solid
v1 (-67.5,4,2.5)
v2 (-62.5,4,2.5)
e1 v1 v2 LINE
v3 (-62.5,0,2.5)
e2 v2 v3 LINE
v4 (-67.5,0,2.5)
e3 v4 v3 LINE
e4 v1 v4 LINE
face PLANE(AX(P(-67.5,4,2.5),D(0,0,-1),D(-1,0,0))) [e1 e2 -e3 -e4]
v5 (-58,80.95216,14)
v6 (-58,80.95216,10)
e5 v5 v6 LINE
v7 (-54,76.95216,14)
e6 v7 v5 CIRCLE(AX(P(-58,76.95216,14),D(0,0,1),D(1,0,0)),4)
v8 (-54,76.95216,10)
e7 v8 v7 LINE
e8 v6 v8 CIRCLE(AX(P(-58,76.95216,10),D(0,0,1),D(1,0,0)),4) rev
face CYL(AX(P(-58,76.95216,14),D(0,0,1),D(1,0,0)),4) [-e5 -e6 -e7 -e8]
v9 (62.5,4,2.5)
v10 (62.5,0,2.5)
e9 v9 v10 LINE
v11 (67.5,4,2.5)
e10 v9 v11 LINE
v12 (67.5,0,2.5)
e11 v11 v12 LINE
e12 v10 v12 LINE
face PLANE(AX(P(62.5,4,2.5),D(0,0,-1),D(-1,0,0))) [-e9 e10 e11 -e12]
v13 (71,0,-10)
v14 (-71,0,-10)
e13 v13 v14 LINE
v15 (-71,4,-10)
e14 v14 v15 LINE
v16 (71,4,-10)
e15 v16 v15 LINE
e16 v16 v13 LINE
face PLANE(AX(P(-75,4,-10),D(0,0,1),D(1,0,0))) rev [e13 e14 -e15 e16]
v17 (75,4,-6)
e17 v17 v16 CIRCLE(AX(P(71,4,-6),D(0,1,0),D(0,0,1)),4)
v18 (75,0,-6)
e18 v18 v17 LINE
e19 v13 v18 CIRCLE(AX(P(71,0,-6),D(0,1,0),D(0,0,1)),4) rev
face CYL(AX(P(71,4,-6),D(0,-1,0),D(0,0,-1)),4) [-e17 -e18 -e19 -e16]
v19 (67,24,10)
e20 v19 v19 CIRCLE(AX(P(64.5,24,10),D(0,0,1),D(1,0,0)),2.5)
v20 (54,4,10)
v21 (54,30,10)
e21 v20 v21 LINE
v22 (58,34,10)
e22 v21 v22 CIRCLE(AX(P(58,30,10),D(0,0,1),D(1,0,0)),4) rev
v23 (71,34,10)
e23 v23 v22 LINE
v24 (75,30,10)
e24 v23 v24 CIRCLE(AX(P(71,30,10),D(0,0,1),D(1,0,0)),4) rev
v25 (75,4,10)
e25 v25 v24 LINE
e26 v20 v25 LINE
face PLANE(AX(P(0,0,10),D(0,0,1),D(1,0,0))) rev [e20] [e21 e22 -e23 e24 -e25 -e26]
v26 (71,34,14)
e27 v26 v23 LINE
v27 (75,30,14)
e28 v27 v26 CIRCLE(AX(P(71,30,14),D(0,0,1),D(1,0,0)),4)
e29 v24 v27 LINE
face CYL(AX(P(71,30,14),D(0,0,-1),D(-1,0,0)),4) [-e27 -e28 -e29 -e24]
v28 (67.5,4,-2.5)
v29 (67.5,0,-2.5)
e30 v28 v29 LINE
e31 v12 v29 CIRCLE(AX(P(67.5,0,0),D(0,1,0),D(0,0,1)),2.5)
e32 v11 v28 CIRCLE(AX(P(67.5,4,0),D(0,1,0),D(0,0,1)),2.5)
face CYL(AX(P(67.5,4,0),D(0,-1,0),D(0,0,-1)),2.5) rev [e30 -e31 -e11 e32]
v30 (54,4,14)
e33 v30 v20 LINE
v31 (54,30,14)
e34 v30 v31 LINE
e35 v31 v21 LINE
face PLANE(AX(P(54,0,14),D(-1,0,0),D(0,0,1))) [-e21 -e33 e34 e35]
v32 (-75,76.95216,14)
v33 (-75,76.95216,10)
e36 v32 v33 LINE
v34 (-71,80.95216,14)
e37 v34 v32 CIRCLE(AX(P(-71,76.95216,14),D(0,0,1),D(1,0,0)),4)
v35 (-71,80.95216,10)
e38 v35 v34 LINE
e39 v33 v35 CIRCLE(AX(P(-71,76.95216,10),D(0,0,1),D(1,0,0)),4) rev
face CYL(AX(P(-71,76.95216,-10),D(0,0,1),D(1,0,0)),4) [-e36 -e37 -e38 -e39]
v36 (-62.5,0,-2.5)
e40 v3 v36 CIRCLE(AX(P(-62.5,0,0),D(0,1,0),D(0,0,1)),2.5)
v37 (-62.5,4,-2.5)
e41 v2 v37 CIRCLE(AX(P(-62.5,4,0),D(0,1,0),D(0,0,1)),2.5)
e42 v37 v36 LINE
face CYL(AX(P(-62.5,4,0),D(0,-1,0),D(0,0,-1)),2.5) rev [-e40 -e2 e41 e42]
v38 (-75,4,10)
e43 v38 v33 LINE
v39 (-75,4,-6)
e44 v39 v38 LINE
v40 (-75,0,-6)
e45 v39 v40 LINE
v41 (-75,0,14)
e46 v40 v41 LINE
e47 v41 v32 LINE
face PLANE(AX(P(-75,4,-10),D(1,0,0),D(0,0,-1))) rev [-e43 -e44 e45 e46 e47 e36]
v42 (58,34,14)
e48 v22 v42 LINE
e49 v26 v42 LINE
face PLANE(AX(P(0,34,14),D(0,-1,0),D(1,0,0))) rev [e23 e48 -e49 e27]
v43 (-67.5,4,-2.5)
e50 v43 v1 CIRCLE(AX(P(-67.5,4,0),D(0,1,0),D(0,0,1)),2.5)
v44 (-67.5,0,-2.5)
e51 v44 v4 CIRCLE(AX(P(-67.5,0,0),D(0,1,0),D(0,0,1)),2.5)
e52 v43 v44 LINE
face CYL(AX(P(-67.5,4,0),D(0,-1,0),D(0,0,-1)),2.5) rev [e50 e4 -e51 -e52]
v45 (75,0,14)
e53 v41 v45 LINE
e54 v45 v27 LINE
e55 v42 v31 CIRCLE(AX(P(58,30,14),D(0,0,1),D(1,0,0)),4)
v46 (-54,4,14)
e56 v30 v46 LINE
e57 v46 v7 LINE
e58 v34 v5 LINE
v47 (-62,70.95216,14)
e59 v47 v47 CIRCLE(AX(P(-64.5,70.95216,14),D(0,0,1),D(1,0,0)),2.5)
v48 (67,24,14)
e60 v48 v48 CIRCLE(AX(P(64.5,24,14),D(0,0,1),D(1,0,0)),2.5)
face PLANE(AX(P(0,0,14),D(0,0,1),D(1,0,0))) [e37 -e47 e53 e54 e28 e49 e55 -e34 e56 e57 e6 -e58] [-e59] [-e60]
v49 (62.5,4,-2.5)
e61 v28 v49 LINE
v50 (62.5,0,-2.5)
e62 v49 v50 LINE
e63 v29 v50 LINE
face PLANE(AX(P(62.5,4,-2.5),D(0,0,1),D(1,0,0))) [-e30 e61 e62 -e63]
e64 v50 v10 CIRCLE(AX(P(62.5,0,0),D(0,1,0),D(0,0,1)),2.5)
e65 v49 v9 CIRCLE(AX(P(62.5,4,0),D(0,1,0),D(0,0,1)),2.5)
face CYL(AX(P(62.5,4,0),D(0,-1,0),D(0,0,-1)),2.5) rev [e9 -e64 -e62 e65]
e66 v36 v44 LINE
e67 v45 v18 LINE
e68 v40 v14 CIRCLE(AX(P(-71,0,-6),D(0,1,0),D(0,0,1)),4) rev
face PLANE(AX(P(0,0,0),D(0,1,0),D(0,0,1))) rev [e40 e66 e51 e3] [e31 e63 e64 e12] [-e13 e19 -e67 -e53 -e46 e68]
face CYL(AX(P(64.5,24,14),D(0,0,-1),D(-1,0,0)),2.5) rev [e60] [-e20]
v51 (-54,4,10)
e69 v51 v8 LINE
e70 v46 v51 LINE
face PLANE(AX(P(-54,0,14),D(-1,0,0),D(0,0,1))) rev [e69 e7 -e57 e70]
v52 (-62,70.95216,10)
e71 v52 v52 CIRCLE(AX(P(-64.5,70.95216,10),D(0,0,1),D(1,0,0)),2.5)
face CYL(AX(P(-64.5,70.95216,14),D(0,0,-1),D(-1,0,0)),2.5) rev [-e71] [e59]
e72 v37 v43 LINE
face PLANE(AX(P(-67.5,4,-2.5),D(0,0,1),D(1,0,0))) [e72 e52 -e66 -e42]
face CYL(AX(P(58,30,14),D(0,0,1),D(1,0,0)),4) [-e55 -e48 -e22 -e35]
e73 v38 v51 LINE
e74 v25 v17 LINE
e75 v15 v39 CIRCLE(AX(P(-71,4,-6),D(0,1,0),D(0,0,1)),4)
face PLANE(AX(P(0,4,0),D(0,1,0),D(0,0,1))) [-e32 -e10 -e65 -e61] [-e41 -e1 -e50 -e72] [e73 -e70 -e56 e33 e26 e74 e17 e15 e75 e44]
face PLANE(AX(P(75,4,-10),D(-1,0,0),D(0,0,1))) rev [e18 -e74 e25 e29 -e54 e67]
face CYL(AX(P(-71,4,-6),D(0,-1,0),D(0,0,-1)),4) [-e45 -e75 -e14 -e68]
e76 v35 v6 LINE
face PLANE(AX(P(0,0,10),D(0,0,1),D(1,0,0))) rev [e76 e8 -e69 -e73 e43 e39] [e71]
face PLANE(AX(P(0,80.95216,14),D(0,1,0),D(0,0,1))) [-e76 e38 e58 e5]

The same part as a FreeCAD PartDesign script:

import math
import FreeCAD as App
import Part
import Sketcher

V = App.Vector
Q = App.Units.Quantity


def edges_at(feature, points):
    """Names of the edges that pass closest to the given points."""
    edges = feature.Shape.Edges
    near = lambda p: min(range(len(edges)), key=lambda i: edges[i].distToShape(Part.Vertex(*p))[0])
    return sorted({f"Edge{near(p) + 1}" for p in points})


def add_polygon(sketch, points):
    """Adds a closed chain of lines whose ends are joined by coincident constraints."""
    first, n = sketch.GeometryCount, len(points)
    for a, b in zip(points, points[1:] + points[:1]):
        sketch.addGeometry(Part.LineSegment(App.Vector(*a, 0), App.Vector(*b, 0)), False)
    for i in range(n):
        sketch.addConstraint(Sketcher.Constraint("Coincident", first + i, 2, first + (i + 1) % n, 1))

doc = App.newDocument("Part")
body = doc.addObject("PartDesign::Body", "Body")

# Sketch on XZ plane
sketch1 = doc.addObject("Sketcher::SketchObject", "Sketch")
body.addObject(sketch1)
sketch1.AttachmentSupport = (doc.XZ_Plane, [""])
sketch1.MapMode = "FlatFace"
add_polygon(sketch1, [(-75, -10), (-75, 10), (75, 10), (75, -10)])  # lines 0-3
sketch1.addGeometry(Part.ArcOfCircle(Part.Circle(V(-67.5, 0, 0), V(0, 0, 1), 2.5), math.radians(90), math.radians(270)), False)  # 4
sketch1.addGeometry(Part.LineSegment(V(-67.5, -2.5, 0), V(-62.5, -2.5, 0)), False)  # 5
sketch1.addGeometry(Part.ArcOfCircle(Part.Circle(V(-62.5, 0, 0), V(0, 0, 1), 2.5), math.radians(-90), math.radians(90)), False)  # 6
sketch1.addGeometry(Part.LineSegment(V(-62.5, 2.5, 0), V(-67.5, 2.5, 0)), False)  # 7
sketch1.addGeometry(Part.ArcOfCircle(Part.Circle(V(62.5, 0, 0), V(0, 0, 1), 2.5), math.radians(90), math.radians(270)), False)  # 8
sketch1.addGeometry(Part.LineSegment(V(62.5, -2.5, 0), V(67.5, -2.5, 0)), False)  # 9
sketch1.addGeometry(Part.ArcOfCircle(Part.Circle(V(67.5, 0, 0), V(0, 0, 1), 2.5), math.radians(-90), math.radians(90)), False)  # 10
sketch1.addGeometry(Part.LineSegment(V(67.5, 2.5, 0), V(62.5, 2.5, 0)), False)  # 11
sketch1.addConstraint([
    Sketcher.Constraint("Tangent", 4, 2, 5, 1),
    Sketcher.Constraint("Tangent", 5, 2, 6, 1),
    Sketcher.Constraint("Tangent", 6, 2, 7, 1),
    Sketcher.Constraint("Tangent", 7, 2, 4, 1),
    Sketcher.Constraint("Tangent", 8, 2, 9, 1),
    Sketcher.Constraint("Tangent", 9, 2, 10, 1),
    Sketcher.Constraint("Tangent", 10, 2, 11, 1),
    Sketcher.Constraint("Tangent", 11, 2, 8, 1),
    Sketcher.Constraint("Vertical", 0),
    Sketcher.Constraint("Horizontal", 1),
    Sketcher.Constraint("Vertical", 2),
    Sketcher.Constraint("Horizontal", 3),
    Sketcher.Constraint("Horizontal", 5),
    Sketcher.Constraint("Horizontal", 7),
    Sketcher.Constraint("Horizontal", 9),
    Sketcher.Constraint("Horizontal", 11),
    Sketcher.Constraint("Equal", 6, 8),
    Sketcher.Constraint("Symmetric", 6, 3, 8, 3, -1, 1),
    Sketcher.Constraint("Symmetric", 0, 2, 2, 2, -1, 1),
    Sketcher.Constraint("Symmetric", 4, 3, 10, 3, -2),
    Sketcher.Constraint("Radius", 4, Q("2.5 mm")),
    Sketcher.Constraint("DistanceX", 1, 1, 1, 2, Q("150 mm")),
    Sketcher.Constraint("DistanceX", 5, 1, 5, 2, Q("5 mm")),
    Sketcher.Constraint("DistanceY", 0, 1, 0, 2, Q("20 mm")),
    Sketcher.Constraint("DistanceX", 6, 3, 8, 3, Q("125 mm")),
])
pad1 = doc.addObject("PartDesign::Pad", "Pad")
body.addObject(pad1)
pad1.Profile = sketch1
pad1.Length = 4
pad1.Reversed = True

# Sketch on XY plane
sketch2 = doc.addObject("Sketcher::SketchObject", "Sketch001")
body.addObject(sketch2)
sketch2.AttachmentSupport = (doc.XY_Plane, [""])
sketch2.MapMode = "FlatFace"
sketch2.AttachmentOffset = App.Placement(V(0, 0, 10), App.Rotation())
add_polygon(sketch2, [(-75, 80.95216), (-75, 0), (75, 0), (75, 34), (54, 34), (54, 4), (-54, 4), (-54, 80.95216)])  # lines 0-7
sketch2.addGeometry(Part.Circle(V(-64.5, 70.95216, 0), V(0, 0, 1), 2.5), False)  # 8
sketch2.addGeometry(Part.Circle(V(64.5, 24, 0), V(0, 0, 1), 2.5), False)  # 9
sketch2.addConstraint([
    Sketcher.Constraint("Vertical", 0),
    Sketcher.Constraint("Horizontal", 1),
    Sketcher.Constraint("Vertical", 2),
    Sketcher.Constraint("Horizontal", 3),
    Sketcher.Constraint("Vertical", 4),
    Sketcher.Constraint("Horizontal", 5),
    Sketcher.Constraint("Vertical", 6),
    Sketcher.Constraint("Horizontal", 7),
    Sketcher.Constraint("Equal", 8, 9),
    Sketcher.Constraint("Symmetric", 0, 2, 1, 2, -1, 1),
    Sketcher.Constraint("Equal", 3, 7),
    Sketcher.Constraint("Diameter", 8, Q("5 mm")),
    Sketcher.Constraint("DistanceX", 1, 1, 1, 2, Q("150 mm")),
    Sketcher.Constraint("DistanceX", 3, 2, 3, 1, Q("21 mm")),
    Sketcher.Constraint("DistanceY", 2, 1, 2, 2, Q("34 mm")),
    Sketcher.Constraint("DistanceY", 4, 2, 4, 1, Q("30 mm")),
    Sketcher.Constraint("DistanceY", -1, 1, 9, 3, Q("24 mm")),
    Sketcher.Constraint("DistanceX", 8, 3, 9, 3, Q("129 mm")),
    Sketcher.Constraint("DistanceY", 8, 3, 6, 2, Q("10 mm")),
    Sketcher.Constraint("DistanceX", 8, 3, -1, 1, Q("64.5 mm")),
    Sketcher.Constraint("DistanceY", 0, 2, 0, 1, Q("80.95216 mm")),
])
pad2 = doc.addObject("PartDesign::Pad", "Pad001")
body.addObject(pad2)
pad2.Profile = sketch2
pad2.Length = 4
doc.recompute()

fillet = doc.addObject("PartDesign::Fillet", "Fillet")
body.addObject(fillet)
fillet.Base = (pad2, edges_at(pad2, [
    (-75, 80.952, 12),
    (75, 34, 12),
    (54, 34, 12),
    (-54, 80.952, 12),
    (-75, 2, -10),
    (75, 2, -10),
]))
fillet.Radius = 4

doc.recompute()
